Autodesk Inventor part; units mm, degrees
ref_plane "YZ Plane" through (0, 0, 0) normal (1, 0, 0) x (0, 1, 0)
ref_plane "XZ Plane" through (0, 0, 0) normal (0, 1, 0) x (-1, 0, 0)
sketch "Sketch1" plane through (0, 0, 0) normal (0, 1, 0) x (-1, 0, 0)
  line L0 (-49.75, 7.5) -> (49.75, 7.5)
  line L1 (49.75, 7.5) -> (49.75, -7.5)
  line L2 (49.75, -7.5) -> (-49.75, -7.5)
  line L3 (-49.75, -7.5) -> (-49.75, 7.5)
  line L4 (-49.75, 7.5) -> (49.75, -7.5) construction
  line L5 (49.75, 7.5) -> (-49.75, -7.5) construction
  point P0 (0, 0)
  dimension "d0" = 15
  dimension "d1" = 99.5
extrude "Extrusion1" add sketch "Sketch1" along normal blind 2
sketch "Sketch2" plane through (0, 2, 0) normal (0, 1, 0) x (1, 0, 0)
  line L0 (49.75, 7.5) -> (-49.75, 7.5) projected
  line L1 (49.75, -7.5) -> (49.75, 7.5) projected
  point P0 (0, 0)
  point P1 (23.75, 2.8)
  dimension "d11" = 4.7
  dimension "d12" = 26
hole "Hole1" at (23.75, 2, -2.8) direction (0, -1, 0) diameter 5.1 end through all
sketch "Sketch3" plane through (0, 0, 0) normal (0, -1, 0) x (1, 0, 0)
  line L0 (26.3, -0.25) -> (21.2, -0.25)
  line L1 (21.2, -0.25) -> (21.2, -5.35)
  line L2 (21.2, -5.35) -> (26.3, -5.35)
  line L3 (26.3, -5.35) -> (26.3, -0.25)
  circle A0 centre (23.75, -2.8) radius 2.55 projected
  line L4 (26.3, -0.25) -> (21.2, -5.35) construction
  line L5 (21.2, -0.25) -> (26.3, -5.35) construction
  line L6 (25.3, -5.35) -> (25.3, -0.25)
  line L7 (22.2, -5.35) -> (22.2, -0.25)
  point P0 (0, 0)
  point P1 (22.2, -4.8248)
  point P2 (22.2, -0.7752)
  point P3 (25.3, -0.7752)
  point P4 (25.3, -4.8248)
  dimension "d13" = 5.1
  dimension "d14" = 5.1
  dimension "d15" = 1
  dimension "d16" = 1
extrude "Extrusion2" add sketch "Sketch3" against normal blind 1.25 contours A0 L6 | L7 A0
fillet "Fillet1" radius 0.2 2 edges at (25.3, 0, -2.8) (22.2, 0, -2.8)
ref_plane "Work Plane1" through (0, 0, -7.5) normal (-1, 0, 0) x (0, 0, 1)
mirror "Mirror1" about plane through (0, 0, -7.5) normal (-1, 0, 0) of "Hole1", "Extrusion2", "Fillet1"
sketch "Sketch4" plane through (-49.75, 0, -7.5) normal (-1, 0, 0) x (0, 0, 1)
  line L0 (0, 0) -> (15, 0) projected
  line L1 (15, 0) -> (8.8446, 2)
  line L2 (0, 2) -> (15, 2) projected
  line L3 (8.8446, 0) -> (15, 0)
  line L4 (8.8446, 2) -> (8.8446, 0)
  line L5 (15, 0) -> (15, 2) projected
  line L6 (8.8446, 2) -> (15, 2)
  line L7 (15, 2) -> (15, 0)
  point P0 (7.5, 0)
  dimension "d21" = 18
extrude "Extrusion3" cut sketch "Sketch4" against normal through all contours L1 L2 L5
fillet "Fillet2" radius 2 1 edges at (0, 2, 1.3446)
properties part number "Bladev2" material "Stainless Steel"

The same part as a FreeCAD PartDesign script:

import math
import FreeCAD as App
import Part
import Sketcher
from FreeCAD import Vector
Q = App.Units.Quantity


def edges_at(feature, points):
    """Names of the edges that pass closest to the given points."""
    edges = feature.Shape.Edges
    near = lambda p: min(range(len(edges)), key=lambda i: edges[i].distToShape(Part.Vertex(*p))[0])
    return sorted({f"Edge{near(p) + 1}" for p in points})

doc = App.newDocument("Part")
body = doc.addObject("PartDesign::Body", "Body")

sketch1 = body.newObject("Sketcher::SketchObject", "Sketch")
sketch1.AttachmentSupport = (doc.getObject("XZ_Plane"), [""])
sketch1.MapMode = "FlatFace"
sketch1.addGeometry([
    Part.LineSegment(Vector(-49.75, 7.5, 0), Vector(49.75, 7.5, 0)),
    Part.LineSegment(Vector(49.75, 7.5, 0), Vector(49.75, -7.5, 0)),
    Part.LineSegment(Vector(49.75, -7.5, 0), Vector(-49.75, -7.5, 0)),
    Part.LineSegment(Vector(-49.75, -7.5, 0), Vector(-49.75, 7.5, 0)),
], False)
sketch1.addConstraint([
    Sketcher.Constraint("Coincident", 0, 2, 1, 1),
    Sketcher.Constraint("Coincident", 1, 2, 2, 1),
    Sketcher.Constraint("Coincident", 2, 2, 3, 1),
    Sketcher.Constraint("Coincident", 3, 2, 0, 1),
    Sketcher.Constraint("Horizontal", 0),
    Sketcher.Constraint("Vertical", 1),
    Sketcher.Constraint("Horizontal", 2),
    Sketcher.Constraint("Vertical", 3),
    Sketcher.Constraint("Symmetric", 0, 2, 2, 2, -1, 1),
    Sketcher.Constraint("DistanceY", 1, 2, 1, 1, 15.0),
    Sketcher.Constraint("DistanceX", 0, 1, 0, 2, 99.5),
])
pad1 = body.newObject("PartDesign::Pad", "Pad")
pad1.Profile = sketch1
pad1.Length = 2
pad1.Reversed = True

sketch2 = body.newObject("Sketcher::SketchObject", "Sketch001")
sketch2.AttachmentSupport = (doc.getObject("XZ_Plane"), [""])
sketch2.MapMode = "FlatFace"
sketch2.AttachmentOffset = App.Placement(Vector(0, 0, -2), App.Rotation())
sketch2.addGeometry(Part.Circle(Vector(23.75, -2.8, 0), Vector(0, 0, 1), 2.55), False)
sketch2.addConstraint([
    Sketcher.Constraint("Diameter", 0, 5.1),
    Sketcher.Constraint("DistanceY", 0, 3, -1, 1, 2.8),
    Sketcher.Constraint("DistanceX", -1, 1, 0, 3, 23.75),
])
doc.recompute()
hole = body.newObject("PartDesign::Hole", "Hole")
hole.Profile = sketch2
hole.ThreadType = "None"
hole.Diameter = 5.1
hole.DepthType = "ThroughAll"
hole.Reversed = True

sketch3 = body.newObject("Sketcher::SketchObject", "Sketch002")
sketch3.AttachmentSupport = (doc.getObject("XZ_Plane"), [""])
sketch3.MapMode = "FlatFace"
sketch3.addGeometry([
    Part.ArcOfCircle(Part.Circle(Vector(23.75, -2.8, 0), Vector(0, 0, 1), 2.55), math.radians(-52.566289), math.radians(52.566289)),
    Part.LineSegment(Vector(25.3, -0.775154, 0), Vector(25.3, -4.824846, 0)),
    Part.LineSegment(Vector(22.2, -4.824846, 0), Vector(22.2, -0.775154, 0)),
    Part.ArcOfCircle(Part.Circle(Vector(23.75, -2.8, 0), Vector(0, 0, 1), 2.55), math.radians(127.433711), math.radians(232.566289)),
], False)
sketch3.addConstraint([
    Sketcher.Constraint("Coincident", 0, 1, 1, 2),
    Sketcher.Constraint("Coincident", 1, 1, 0, 2),
    Sketcher.Constraint("Coincident", 2, 1, 3, 2),
    Sketcher.Constraint("Coincident", 3, 1, 2, 2),
    Sketcher.Constraint("Vertical", 1),
    Sketcher.Constraint("Vertical", 2),
    Sketcher.Constraint("Coincident", 3, 3, 0, 3),
    Sketcher.Constraint("Equal", 0, 3),
    Sketcher.Constraint("Horizontal", 0, 1, 2, 1),
    Sketcher.Constraint("Radius", 0, 2.55),
    Sketcher.Constraint("DistanceY", 0, 3, -1, 1, 2.8),
    Sketcher.Constraint("DistanceX", -1, 1, 0, 1, 25.3),
    Sketcher.Constraint("DistanceX", -1, 1, 2, 1, 22.2),
])
pad2 = body.newObject("PartDesign::Pad", "Pad001")
pad2.Profile = sketch3
pad2.Length = 1.25
pad2.Reversed = True
doc.recompute()

fillet = body.newObject("PartDesign::Fillet", "Fillet")
fillet.Base = (pad2, edges_at(pad2, [(25.3, 0, -2.8), (22.2, 0, -2.8)]))
fillet.Radius = 0.2
doc.recompute()

mirrored = body.newObject("PartDesign::Mirrored", "Mirrored")
mirrored.Originals = [hole, pad2, fillet]
mirrored.MirrorPlane = (doc.getObject("YZ_Plane"), [""])
body.Tip = mirrored

sketch4 = body.newObject("Sketcher::SketchObject", "Sketch003")
sketch4.AttachmentSupport = (doc.getObject("YZ_Plane"), [""])
sketch4.MapMode = "FlatFace"
sketch4.AttachmentOffset = App.Placement(Vector(0, 0, -49.75), App.Rotation())
sketch4.addGeometry([
    Part.LineSegment(Vector(2, 1.3446, 0), Vector(0, 7.5, 0)),
    Part.LineSegment(Vector(0, 7.5, 0), Vector(2, 7.5, 0)),
    Part.LineSegment(Vector(2, 7.5, 0), Vector(2, 1.3446, 0)),
], False)
sketch4.addConstraint([
    Sketcher.Constraint("Coincident", 0, 2, 1, 1),
    Sketcher.Constraint("Coincident", 1, 2, 2, 1),
    Sketcher.Constraint("Coincident", 2, 2, 0, 1),
    Sketcher.Constraint("Horizontal", 1),
    Sketcher.Constraint("Vertical", 2),
    Sketcher.Constraint("PointOnObject", 0, 2, -2),
    Sketcher.Constraint("DistanceX", 1, 1, 1, 2, 2.0),
    Sketcher.Constraint("Angle", 0, Q("108 deg")),
    Sketcher.Constraint("DistanceY", -1, 1, 0, 2, 7.5),
])
pocket1 = body.newObject("PartDesign::Pocket", "Pocket")
pocket1.Profile = sketch4
pocket1.Type = "ThroughAll"
pocket1.Reversed = True
doc.recompute()

fillet2 = body.newObject("PartDesign::Fillet", "Fillet001")
fillet2.Base = (pocket1, edges_at(pocket1, [(0, 2, 1.345)]))
fillet2.Radius = 2

doc.recompute()
